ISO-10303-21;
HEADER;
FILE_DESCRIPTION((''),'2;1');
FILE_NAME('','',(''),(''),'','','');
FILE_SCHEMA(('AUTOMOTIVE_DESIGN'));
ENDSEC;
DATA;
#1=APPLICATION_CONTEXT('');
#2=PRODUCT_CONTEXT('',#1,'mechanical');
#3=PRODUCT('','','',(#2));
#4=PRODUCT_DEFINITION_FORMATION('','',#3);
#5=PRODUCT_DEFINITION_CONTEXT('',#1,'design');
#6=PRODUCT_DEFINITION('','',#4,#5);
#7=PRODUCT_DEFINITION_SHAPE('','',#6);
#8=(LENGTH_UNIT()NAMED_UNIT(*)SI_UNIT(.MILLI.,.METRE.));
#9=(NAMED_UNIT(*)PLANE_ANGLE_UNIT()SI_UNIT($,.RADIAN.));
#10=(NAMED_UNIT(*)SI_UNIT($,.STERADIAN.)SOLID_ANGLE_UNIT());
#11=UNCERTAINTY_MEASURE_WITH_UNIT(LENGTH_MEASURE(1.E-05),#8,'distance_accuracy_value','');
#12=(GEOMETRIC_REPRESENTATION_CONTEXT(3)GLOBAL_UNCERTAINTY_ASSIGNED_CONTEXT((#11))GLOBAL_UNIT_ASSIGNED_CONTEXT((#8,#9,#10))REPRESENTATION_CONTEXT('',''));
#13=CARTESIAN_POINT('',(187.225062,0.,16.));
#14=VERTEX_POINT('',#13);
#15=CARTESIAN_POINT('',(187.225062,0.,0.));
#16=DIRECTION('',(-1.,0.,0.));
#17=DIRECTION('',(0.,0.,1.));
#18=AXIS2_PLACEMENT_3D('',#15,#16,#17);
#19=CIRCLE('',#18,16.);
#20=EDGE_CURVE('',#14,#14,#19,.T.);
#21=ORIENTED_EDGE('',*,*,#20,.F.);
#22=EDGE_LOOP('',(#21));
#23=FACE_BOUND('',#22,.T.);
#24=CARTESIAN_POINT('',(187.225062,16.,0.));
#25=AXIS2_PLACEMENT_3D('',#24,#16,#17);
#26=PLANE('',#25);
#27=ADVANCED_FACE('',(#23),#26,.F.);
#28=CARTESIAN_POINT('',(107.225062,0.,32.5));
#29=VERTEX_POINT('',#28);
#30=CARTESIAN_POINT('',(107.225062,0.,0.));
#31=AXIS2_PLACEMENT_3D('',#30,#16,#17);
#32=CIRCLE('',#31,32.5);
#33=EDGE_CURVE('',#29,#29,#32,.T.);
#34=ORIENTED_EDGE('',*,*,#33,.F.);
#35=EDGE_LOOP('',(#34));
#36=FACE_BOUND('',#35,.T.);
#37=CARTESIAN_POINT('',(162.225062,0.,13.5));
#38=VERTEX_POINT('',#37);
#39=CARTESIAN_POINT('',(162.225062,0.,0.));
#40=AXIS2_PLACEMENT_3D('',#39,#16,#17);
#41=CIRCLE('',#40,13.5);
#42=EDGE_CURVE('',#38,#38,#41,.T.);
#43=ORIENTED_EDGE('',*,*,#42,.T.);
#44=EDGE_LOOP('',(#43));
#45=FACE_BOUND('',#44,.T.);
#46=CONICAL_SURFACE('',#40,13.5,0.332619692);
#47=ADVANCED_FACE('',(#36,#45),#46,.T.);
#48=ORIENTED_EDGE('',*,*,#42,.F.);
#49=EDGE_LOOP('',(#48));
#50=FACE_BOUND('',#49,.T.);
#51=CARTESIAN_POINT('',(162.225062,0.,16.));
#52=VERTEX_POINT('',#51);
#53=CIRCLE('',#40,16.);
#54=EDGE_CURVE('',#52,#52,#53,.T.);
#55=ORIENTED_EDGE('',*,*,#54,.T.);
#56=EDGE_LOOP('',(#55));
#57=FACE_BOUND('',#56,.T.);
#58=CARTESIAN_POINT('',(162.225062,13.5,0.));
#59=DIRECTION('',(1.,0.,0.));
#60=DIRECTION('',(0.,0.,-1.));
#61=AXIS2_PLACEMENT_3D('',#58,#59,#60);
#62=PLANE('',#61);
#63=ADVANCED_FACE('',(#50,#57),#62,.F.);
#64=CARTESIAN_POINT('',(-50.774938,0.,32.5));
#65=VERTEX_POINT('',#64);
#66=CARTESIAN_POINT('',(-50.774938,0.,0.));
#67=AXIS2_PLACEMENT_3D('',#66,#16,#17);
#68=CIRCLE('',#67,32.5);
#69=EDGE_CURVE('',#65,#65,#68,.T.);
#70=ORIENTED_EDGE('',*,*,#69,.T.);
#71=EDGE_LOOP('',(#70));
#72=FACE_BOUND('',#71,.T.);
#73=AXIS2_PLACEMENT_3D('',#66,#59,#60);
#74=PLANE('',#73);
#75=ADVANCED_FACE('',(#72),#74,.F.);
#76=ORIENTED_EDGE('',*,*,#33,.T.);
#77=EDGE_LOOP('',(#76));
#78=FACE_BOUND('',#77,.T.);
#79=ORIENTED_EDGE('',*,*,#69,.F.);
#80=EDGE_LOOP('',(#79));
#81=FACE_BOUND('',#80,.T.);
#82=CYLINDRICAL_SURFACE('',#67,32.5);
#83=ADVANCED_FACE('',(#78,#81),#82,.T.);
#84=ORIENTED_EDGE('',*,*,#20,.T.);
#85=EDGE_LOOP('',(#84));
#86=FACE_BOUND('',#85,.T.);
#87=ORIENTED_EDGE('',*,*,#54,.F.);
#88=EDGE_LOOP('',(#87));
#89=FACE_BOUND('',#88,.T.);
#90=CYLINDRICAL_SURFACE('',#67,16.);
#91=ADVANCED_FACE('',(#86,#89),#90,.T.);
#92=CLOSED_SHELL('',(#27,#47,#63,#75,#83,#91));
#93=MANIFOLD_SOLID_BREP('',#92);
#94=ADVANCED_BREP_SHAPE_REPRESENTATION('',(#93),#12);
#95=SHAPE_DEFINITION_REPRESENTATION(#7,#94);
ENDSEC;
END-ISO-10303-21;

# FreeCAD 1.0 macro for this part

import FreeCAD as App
import Part
import Sketcher

V = App.Vector
Q = App.Units.Quantity


def add_polygon(sketch, points):
    """Adds a closed chain of lines whose ends are joined by coincident constraints."""
    first, n = sketch.GeometryCount, len(points)
    for a, b in zip(points, points[1:] + points[:1]):
        sketch.addGeometry(Part.LineSegment(App.Vector(*a, 0), App.Vector(*b, 0)), False)
    for i in range(n):
        sketch.addConstraint(Sketcher.Constraint("Coincident", first + i, 2, first + (i + 1) % n, 1))

doc = App.newDocument("Part")
body = doc.addObject("PartDesign::Body", "Body")

# Sketch on XY plane
sketch1 = body.newObject("Sketcher::SketchObject", "Sketch")
sketch1.AttachmentSupport = (doc.getObject("XY_Plane"), [""])
sketch1.MapMode = "FlatFace"
add_polygon(sketch1, [(-50.8, 32.5), (-50.8, 0), (187.2, 0), (187.2, 16), (162.2, 16), (162.2, 13.5), (107.2, 32.5)])  # lines 0-6
sketch1.addConstraint([
    Sketcher.Constraint("Vertical", 0),
    Sketcher.Constraint("Horizontal", 1),
    Sketcher.Constraint("Vertical", 2),
    Sketcher.Constraint("Horizontal", 3),
    Sketcher.Constraint("Vertical", 4),
    Sketcher.Constraint("Horizontal", 6),
    Sketcher.Constraint("PointOnObject", 0, 2, -1),
    Sketcher.Constraint("DistanceX", 1, 1, 1, 2, Q("238 mm")),
    Sketcher.Constraint("DistanceX", 3, 2, 3, 1, Q("25 mm")),
    Sketcher.Constraint("DistanceX", 6, 2, 6, 1, Q("158 mm")),
    Sketcher.Constraint("DistanceY", 2, 1, 2, 2, Q("16 mm")),
    Sketcher.Constraint("DistanceY", 0, 2, 0, 1, Q("32.5 mm")),
    Sketcher.Constraint("DistanceY", 4, 2, 4, 1, Q("2.5 mm")),
    Sketcher.Constraint("DistanceX", 0, 2, -1, 1, Q("50.774938 mm")),
])
revolution = body.newObject("PartDesign::Revolution", "Revolution")
revolution.Profile = sketch1
revolution.ReferenceAxis = (sketch1, ["H_Axis"])
revolution.Angle = 360

doc.recompute()
